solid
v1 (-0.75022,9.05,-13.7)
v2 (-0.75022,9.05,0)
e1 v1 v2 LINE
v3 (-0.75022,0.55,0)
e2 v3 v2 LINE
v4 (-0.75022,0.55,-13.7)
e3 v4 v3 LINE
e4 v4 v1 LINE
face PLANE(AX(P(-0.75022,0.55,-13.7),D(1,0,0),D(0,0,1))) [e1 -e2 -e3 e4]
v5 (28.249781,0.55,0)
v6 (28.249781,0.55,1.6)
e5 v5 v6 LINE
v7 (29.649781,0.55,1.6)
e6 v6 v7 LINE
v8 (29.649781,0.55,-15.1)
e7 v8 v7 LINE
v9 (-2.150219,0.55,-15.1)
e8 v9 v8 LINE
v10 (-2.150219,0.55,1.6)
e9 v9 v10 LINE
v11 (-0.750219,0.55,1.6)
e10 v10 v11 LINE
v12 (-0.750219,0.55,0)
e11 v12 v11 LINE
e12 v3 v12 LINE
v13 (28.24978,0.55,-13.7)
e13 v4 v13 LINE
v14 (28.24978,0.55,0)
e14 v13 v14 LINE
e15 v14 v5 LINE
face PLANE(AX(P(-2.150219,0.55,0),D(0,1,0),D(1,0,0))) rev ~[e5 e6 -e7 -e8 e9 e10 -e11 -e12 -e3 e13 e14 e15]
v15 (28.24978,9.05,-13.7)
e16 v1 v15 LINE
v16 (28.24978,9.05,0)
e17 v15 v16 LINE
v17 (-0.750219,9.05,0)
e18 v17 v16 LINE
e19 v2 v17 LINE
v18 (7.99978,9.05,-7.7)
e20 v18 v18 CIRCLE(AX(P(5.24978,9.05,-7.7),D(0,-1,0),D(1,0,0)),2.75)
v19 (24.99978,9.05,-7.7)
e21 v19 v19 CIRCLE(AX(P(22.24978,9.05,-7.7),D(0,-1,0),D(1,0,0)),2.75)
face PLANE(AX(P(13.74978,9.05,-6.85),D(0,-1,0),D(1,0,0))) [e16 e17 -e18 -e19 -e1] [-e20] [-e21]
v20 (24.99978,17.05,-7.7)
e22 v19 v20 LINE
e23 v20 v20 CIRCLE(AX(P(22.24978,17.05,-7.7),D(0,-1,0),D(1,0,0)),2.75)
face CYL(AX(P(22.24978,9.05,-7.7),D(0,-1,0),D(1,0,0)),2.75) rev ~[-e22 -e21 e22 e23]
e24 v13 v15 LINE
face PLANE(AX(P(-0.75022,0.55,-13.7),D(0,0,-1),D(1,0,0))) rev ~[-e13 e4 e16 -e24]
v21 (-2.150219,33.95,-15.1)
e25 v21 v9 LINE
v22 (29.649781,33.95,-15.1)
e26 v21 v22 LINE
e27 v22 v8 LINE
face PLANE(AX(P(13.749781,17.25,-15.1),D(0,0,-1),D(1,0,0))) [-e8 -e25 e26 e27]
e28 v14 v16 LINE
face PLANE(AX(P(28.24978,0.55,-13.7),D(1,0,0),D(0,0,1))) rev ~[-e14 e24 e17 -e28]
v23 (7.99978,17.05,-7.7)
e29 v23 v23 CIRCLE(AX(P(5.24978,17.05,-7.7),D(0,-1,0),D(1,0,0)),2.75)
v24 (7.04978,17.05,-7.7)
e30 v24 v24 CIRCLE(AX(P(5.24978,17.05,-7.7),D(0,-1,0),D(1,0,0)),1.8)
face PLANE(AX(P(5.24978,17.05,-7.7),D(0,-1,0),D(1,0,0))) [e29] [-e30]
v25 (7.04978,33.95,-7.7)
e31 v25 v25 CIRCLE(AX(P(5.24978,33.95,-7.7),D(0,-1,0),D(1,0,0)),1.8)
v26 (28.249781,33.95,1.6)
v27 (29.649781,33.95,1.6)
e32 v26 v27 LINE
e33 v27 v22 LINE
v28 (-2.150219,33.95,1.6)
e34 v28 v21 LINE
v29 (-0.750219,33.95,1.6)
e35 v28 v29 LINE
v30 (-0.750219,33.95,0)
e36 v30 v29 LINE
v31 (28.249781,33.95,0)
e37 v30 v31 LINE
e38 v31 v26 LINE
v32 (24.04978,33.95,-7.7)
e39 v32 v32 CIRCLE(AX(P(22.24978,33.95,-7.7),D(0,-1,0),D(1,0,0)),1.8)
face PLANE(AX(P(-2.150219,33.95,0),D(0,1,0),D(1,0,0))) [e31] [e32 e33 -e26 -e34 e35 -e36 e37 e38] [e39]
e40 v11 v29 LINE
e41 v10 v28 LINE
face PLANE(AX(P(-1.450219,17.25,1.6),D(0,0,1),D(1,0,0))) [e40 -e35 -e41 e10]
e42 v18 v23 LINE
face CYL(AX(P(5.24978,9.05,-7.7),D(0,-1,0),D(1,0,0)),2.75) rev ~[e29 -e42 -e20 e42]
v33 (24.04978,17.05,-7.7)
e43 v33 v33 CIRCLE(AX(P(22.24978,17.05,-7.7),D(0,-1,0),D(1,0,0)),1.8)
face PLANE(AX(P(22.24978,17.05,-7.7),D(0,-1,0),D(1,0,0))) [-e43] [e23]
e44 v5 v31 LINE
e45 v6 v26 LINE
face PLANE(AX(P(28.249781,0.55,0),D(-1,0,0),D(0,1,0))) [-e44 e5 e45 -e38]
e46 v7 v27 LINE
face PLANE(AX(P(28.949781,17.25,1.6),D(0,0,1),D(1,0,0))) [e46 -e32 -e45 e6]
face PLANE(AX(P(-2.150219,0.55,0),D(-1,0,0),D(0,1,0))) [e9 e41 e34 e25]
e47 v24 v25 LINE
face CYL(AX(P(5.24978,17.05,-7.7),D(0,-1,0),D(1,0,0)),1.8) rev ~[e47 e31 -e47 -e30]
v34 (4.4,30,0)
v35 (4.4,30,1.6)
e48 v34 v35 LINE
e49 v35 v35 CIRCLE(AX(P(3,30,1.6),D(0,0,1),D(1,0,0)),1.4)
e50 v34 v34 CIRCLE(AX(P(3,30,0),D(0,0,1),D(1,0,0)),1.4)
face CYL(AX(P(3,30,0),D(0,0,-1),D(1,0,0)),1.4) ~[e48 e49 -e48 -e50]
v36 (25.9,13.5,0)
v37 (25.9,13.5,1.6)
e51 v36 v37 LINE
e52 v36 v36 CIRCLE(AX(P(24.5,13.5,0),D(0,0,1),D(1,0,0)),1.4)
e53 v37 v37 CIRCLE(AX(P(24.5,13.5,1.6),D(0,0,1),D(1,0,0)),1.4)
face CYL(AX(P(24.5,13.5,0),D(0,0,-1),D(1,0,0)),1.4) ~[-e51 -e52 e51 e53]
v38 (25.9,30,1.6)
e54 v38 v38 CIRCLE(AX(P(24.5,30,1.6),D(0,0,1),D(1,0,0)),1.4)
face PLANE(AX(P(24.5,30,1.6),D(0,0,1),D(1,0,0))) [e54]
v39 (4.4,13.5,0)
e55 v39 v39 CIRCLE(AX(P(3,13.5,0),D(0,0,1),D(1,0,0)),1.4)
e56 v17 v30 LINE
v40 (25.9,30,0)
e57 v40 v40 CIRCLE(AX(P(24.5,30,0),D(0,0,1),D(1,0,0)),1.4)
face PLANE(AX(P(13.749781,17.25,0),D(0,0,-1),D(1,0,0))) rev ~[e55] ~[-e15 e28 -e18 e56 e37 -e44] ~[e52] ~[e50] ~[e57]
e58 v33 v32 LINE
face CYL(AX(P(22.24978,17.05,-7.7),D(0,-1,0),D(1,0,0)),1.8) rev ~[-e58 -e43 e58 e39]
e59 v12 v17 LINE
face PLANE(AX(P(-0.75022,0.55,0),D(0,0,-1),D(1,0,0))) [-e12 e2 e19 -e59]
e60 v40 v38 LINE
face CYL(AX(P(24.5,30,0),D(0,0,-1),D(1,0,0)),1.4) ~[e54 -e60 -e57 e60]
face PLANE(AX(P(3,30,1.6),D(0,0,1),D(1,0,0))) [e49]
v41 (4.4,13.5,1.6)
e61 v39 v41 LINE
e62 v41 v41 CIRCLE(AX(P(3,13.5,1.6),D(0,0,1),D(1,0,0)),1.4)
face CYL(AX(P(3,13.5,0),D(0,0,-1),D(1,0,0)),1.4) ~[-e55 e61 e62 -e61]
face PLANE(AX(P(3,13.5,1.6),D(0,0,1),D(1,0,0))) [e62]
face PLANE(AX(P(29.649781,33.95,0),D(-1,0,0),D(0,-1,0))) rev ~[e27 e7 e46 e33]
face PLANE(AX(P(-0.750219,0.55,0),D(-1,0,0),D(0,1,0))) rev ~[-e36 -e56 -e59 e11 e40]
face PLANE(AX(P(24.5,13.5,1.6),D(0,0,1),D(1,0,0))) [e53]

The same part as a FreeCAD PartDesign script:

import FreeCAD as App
import Part
import Sketcher

V = App.Vector
Q = App.Units.Quantity

doc = App.newDocument("Part")
params = doc.addObject("Spreadsheet::Sheet", "Params")
for row, (alias, value) in enumerate([
    ("sketch1_width", "31.8 mm"),
    ("sketch1_height", "33.4 mm"),
    ("pad1_length", "15.1 mm"),
    ("sketch2_diameter", "2.8 mm"),
    ("sketch2_width", "1.4 mm"),
    ("sketch2_height", "33.4 mm"),
    ("pad2_length", "1.6 mm"),
    ("sketch3_width", "29 mm"),
    ("sketch3_height", "13.7 mm"),
    ("pocket1_length", "8.5 mm"),
    ("sketch4_diameter", "5.5 mm"),
    ("pocket2_length", "8 mm"),
    ("sketch5_diameter", "3.6 mm"),
    ("pocket3_length", "20 mm"),
], start=1):
    params.set(f"A{row}", alias)
    params.set(f"B{row}", "=" + value)
    params.setAlias(f"B{row}", alias)

body = doc.addObject("PartDesign::Body", "Body")

sketch1 = body.newObject("Sketcher::SketchObject", "Sketch")
sketch1.AttachmentSupport = (doc.getObject("XY_Plane"), [""])
sketch1.MapMode = "FlatFace"
sketch1.addGeometry(Part.LineSegment(V(-2.150219, 0.55, 0), V(-2.150219, 33.95, 0)), False)
sketch1.addGeometry(Part.LineSegment(V(-2.150219, 33.95, 0), V(29.649781, 33.95, 0)), False)
sketch1.addGeometry(Part.LineSegment(V(29.649781, 33.95, 0), V(29.649781, 0.55, 0)), False)
sketch1.addGeometry(Part.LineSegment(V(29.649781, 0.55, 0), V(-2.150219, 0.55, 0)), False)
sketch1.addConstraint(Sketcher.Constraint("Coincident", 0, 2, 1, 1))
sketch1.addConstraint(Sketcher.Constraint("Coincident", 1, 2, 2, 1))
sketch1.addConstraint(Sketcher.Constraint("Coincident", 2, 2, 3, 1))
sketch1.addConstraint(Sketcher.Constraint("Coincident", 3, 2, 0, 1))
sketch1.addConstraint(Sketcher.Constraint("Vertical", 0))
sketch1.addConstraint(Sketcher.Constraint("Horizontal", 1))
sketch1.addConstraint(Sketcher.Constraint("Vertical", 2))
sketch1.addConstraint(Sketcher.Constraint("Horizontal", 3))
sketch1.addConstraint(Sketcher.Constraint("DistanceX", 1, 1, 1, 2, Q("31.8 mm")))
sketch1.addConstraint(Sketcher.Constraint("DistanceY", 0, 1, 0, 2, Q("33.4 mm")))
sketch1.addConstraint(Sketcher.Constraint("DistanceY", -1, 1, 0, 2, Q("33.95 mm")))
sketch1.addConstraint(Sketcher.Constraint("DistanceX", 0, 2, -1, 1, Q("2.150219 mm")))
sketch1.setExpression("Constraints[8]", "Params.sketch1_width")
sketch1.setExpression("Constraints[9]", "Params.sketch1_height")
pad1 = body.newObject("PartDesign::Pad", "Pad")
pad1.Profile = sketch1
pad1.setExpression("Length", "Params.pad1_length")
pad1.Reversed = True

sketch2 = body.newObject("Sketcher::SketchObject", "Sketch001")
sketch2.AttachmentSupport = (doc.getObject("XY_Plane"), [""])
sketch2.MapMode = "FlatFace"
sketch2.addGeometry(Part.Circle(V(3, 30, 0), V(0, 0, 1), 1.4), False)
sketch2.addGeometry(Part.Circle(V(24.5, 30, 0), V(0, 0, 1), 1.4), False)
sketch2.addGeometry(Part.Circle(V(3, 13.5, 0), V(0, 0, 1), 1.4), False)
sketch2.addGeometry(Part.Circle(V(24.5, 13.5, 0), V(0, 0, 1), 1.4), False)
sketch2.addGeometry(Part.LineSegment(V(-2.150219, 33.95, 0), V(-2.150219, 0.55, 0)), False)
sketch2.addGeometry(Part.LineSegment(V(-2.150219, 0.55, 0), V(-0.750219, 0.55, 0)), False)
sketch2.addGeometry(Part.LineSegment(V(-0.750219, 0.55, 0), V(-0.750219, 33.95, 0)), False)
sketch2.addGeometry(Part.LineSegment(V(-0.750219, 33.95, 0), V(-2.150219, 33.95, 0)), False)
sketch2.addGeometry(Part.LineSegment(V(28.249781, 33.95, 0), V(28.249781, 0.55, 0)), False)
sketch2.addGeometry(Part.LineSegment(V(28.249781, 0.55, 0), V(29.649781, 0.55, 0)), False)
sketch2.addGeometry(Part.LineSegment(V(29.649781, 0.55, 0), V(29.649781, 33.95, 0)), False)
sketch2.addGeometry(Part.LineSegment(V(29.649781, 33.95, 0), V(28.249781, 33.95, 0)), False)
sketch2.addConstraint(Sketcher.Constraint("Coincident", 4, 2, 5, 1))
sketch2.addConstraint(Sketcher.Constraint("Coincident", 5, 2, 6, 1))
sketch2.addConstraint(Sketcher.Constraint("Coincident", 6, 2, 7, 1))
sketch2.addConstraint(Sketcher.Constraint("Coincident", 7, 2, 4, 1))
sketch2.addConstraint(Sketcher.Constraint("Coincident", 8, 2, 9, 1))
sketch2.addConstraint(Sketcher.Constraint("Coincident", 9, 2, 10, 1))
sketch2.addConstraint(Sketcher.Constraint("Coincident", 10, 2, 11, 1))
sketch2.addConstraint(Sketcher.Constraint("Coincident", 11, 2, 8, 1))
sketch2.addConstraint(Sketcher.Constraint("Vertical", 4))
sketch2.addConstraint(Sketcher.Constraint("Horizontal", 5))
sketch2.addConstraint(Sketcher.Constraint("Vertical", 6))
sketch2.addConstraint(Sketcher.Constraint("Horizontal", 7))
sketch2.addConstraint(Sketcher.Constraint("Vertical", 8))
sketch2.addConstraint(Sketcher.Constraint("Horizontal", 9))
sketch2.addConstraint(Sketcher.Constraint("Vertical", 10))
sketch2.addConstraint(Sketcher.Constraint("Horizontal", 11))
sketch2.addConstraint(Sketcher.Constraint("Equal", 0, 1))
sketch2.addConstraint(Sketcher.Constraint("Equal", 1, 2))
sketch2.addConstraint(Sketcher.Constraint("Equal", 2, 3))
sketch2.addConstraint(Sketcher.Constraint("Horizontal", 0, 3, 1, 3))
sketch2.addConstraint(Sketcher.Constraint("Horizontal", 2, 3, 3, 3))
sketch2.addConstraint(Sketcher.Constraint("Horizontal", 5, 2, 8, 2))
sketch2.addConstraint(Sketcher.Constraint("Horizontal", 7, 2, 10, 2))
sketch2.addConstraint(Sketcher.Constraint("Vertical", 0, 3, 2, 3))
sketch2.addConstraint(Sketcher.Constraint("Vertical", 1, 3, 3, 3))
sketch2.addConstraint(Sketcher.Constraint("Equal", 7, 9))
sketch2.addConstraint(Sketcher.Constraint("Diameter", 0, Q("2.8 mm")))
sketch2.addConstraint(Sketcher.Constraint("DistanceX", 5, 1, 5, 2, Q("1.4 mm")))
sketch2.addConstraint(Sketcher.Constraint("DistanceY", 4, 2, 4, 1, Q("33.4 mm")))
sketch2.addConstraint(Sketcher.Constraint("DistanceX", -1, 1, 0, 3, Q("3 mm")))
sketch2.addConstraint(Sketcher.Constraint("DistanceY", -1, 1, 0, 3, Q("30 mm")))
sketch2.addConstraint(Sketcher.Constraint("DistanceX", 5, 2, 8, 2, Q("29 mm")))
sketch2.addConstraint(Sketcher.Constraint("DistanceX", -1, 1, 1, 3, Q("24.5 mm")))
sketch2.addConstraint(Sketcher.Constraint("DistanceY", -1, 1, 2, 3, Q("13.5 mm")))
sketch2.addConstraint(Sketcher.Constraint("DistanceY", -1, 1, 4, 2, Q("0.55 mm")))
sketch2.addConstraint(Sketcher.Constraint("DistanceX", 4, 2, -1, 1, Q("2.150219 mm")))
sketch2.setExpression("Constraints[26]", "Params.sketch2_diameter")
sketch2.setExpression("Constraints[27]", "Params.sketch2_width")
sketch2.setExpression("Constraints[28]", "Params.sketch2_height")
pad2 = body.newObject("PartDesign::Pad", "Pad001")
pad2.Profile = sketch2
pad2.setExpression("Length", "Params.pad2_length")

sketch3 = body.newObject("Sketcher::SketchObject", "Sketch002")
sketch3.AttachmentSupport = (doc.getObject("XZ_Plane"), [""])
sketch3.MapMode = "FlatFace"
sketch3.AttachmentOffset = App.Placement(V(0, 0, -0.55), App.Rotation())
sketch3.addGeometry(Part.LineSegment(V(-0.75022, 0, 0), V(-0.75022, -13.7, 0)), False)
sketch3.addGeometry(Part.LineSegment(V(-0.75022, -13.7, 0), V(28.24978, -13.7, 0)), False)
sketch3.addGeometry(Part.LineSegment(V(28.24978, -13.7, 0), V(28.24978, 0, 0)), False)
sketch3.addGeometry(Part.LineSegment(V(28.24978, 0, 0), V(-0.75022, 0, 0)), False)
sketch3.addConstraint(Sketcher.Constraint("Coincident", 0, 2, 1, 1))
sketch3.addConstraint(Sketcher.Constraint("Coincident", 1, 2, 2, 1))
sketch3.addConstraint(Sketcher.Constraint("Coincident", 2, 2, 3, 1))
sketch3.addConstraint(Sketcher.Constraint("Coincident", 3, 2, 0, 1))
sketch3.addConstraint(Sketcher.Constraint("Vertical", 0))
sketch3.addConstraint(Sketcher.Constraint("Horizontal", 1))
sketch3.addConstraint(Sketcher.Constraint("Vertical", 2))
sketch3.addConstraint(Sketcher.Constraint("Horizontal", 3))
sketch3.addConstraint(Sketcher.Constraint("PointOnObject", 2, 2, -1))
sketch3.addConstraint(Sketcher.Constraint("DistanceX", 1, 1, 1, 2, Q("29 mm")))
sketch3.addConstraint(Sketcher.Constraint("DistanceY", 0, 2, 0, 1, Q("13.7 mm")))
sketch3.addConstraint(Sketcher.Constraint("DistanceX", 0, 2, -1, 1, Q("0.75022 mm")))
sketch3.setExpression("Constraints[9]", "Params.sketch3_width")
sketch3.setExpression("Constraints[10]", "Params.sketch3_height")
pocket1 = body.newObject("PartDesign::Pocket", "Pocket")
pocket1.Profile = sketch3
pocket1.setExpression("Length", "Params.pocket1_length")

sketch4 = body.newObject("Sketcher::SketchObject", "Sketch003")
sketch4.AttachmentSupport = (doc.getObject("XZ_Plane"), [""])
sketch4.MapMode = "FlatFace"
sketch4.AttachmentOffset = App.Placement(V(0, 0, -9.05), App.Rotation())
sketch4.addGeometry(Part.Circle(V(5.24978, -7.7, 0), V(0, 0, 1), 2.75), False)
sketch4.addGeometry(Part.Circle(V(22.24978, -7.7, 0), V(0, 0, 1), 2.75), False)
sketch4.addConstraint(Sketcher.Constraint("Equal", 0, 1))
sketch4.addConstraint(Sketcher.Constraint("Horizontal", 0, 3, 1, 3))
sketch4.addConstraint(Sketcher.Constraint("Diameter", 0, Q("5.5 mm")))
sketch4.addConstraint(Sketcher.Constraint("DistanceX", 0, 3, 1, 3, Q("17 mm")))
sketch4.addConstraint(Sketcher.Constraint("DistanceY", 0, 3, -1, 1, Q("7.7 mm")))
sketch4.addConstraint(Sketcher.Constraint("DistanceX", -1, 1, 0, 3, Q("5.24978 mm")))
sketch4.setExpression("Constraints[2]", "Params.sketch4_diameter")
pocket2 = body.newObject("PartDesign::Pocket", "Pocket001")
pocket2.Profile = sketch4
pocket2.setExpression("Length", "Params.pocket2_length")

sketch5 = body.newObject("Sketcher::SketchObject", "Sketch004")
sketch5.AttachmentSupport = (doc.getObject("XZ_Plane"), [""])
sketch5.MapMode = "FlatFace"
sketch5.AttachmentOffset = App.Placement(V(0, 0, -17.05), App.Rotation())
sketch5.addGeometry(Part.Circle(V(5.24978, -7.7, 0), V(0, 0, 1), 1.8), False)
sketch5.addGeometry(Part.Circle(V(22.24978, -7.7, 0), V(0, 0, 1), 1.8), False)
sketch5.addConstraint(Sketcher.Constraint("Equal", 0, 1))
sketch5.addConstraint(Sketcher.Constraint("Horizontal", 0, 3, 1, 3))
sketch5.addConstraint(Sketcher.Constraint("Diameter", 0, Q("3.6 mm")))
sketch5.addConstraint(Sketcher.Constraint("DistanceX", 0, 3, 1, 3, Q("17 mm")))
sketch5.addConstraint(Sketcher.Constraint("DistanceY", 0, 3, -1, 1, Q("7.7 mm")))
sketch5.addConstraint(Sketcher.Constraint("DistanceX", -1, 1, 0, 3, Q("5.24978 mm")))
sketch5.setExpression("Constraints[2]", "Params.sketch5_diameter")
pocket3 = body.newObject("PartDesign::Pocket", "Pocket002")
pocket3.Profile = sketch5
pocket3.setExpression("Length", "Params.pocket3_length")

doc.recompute()
